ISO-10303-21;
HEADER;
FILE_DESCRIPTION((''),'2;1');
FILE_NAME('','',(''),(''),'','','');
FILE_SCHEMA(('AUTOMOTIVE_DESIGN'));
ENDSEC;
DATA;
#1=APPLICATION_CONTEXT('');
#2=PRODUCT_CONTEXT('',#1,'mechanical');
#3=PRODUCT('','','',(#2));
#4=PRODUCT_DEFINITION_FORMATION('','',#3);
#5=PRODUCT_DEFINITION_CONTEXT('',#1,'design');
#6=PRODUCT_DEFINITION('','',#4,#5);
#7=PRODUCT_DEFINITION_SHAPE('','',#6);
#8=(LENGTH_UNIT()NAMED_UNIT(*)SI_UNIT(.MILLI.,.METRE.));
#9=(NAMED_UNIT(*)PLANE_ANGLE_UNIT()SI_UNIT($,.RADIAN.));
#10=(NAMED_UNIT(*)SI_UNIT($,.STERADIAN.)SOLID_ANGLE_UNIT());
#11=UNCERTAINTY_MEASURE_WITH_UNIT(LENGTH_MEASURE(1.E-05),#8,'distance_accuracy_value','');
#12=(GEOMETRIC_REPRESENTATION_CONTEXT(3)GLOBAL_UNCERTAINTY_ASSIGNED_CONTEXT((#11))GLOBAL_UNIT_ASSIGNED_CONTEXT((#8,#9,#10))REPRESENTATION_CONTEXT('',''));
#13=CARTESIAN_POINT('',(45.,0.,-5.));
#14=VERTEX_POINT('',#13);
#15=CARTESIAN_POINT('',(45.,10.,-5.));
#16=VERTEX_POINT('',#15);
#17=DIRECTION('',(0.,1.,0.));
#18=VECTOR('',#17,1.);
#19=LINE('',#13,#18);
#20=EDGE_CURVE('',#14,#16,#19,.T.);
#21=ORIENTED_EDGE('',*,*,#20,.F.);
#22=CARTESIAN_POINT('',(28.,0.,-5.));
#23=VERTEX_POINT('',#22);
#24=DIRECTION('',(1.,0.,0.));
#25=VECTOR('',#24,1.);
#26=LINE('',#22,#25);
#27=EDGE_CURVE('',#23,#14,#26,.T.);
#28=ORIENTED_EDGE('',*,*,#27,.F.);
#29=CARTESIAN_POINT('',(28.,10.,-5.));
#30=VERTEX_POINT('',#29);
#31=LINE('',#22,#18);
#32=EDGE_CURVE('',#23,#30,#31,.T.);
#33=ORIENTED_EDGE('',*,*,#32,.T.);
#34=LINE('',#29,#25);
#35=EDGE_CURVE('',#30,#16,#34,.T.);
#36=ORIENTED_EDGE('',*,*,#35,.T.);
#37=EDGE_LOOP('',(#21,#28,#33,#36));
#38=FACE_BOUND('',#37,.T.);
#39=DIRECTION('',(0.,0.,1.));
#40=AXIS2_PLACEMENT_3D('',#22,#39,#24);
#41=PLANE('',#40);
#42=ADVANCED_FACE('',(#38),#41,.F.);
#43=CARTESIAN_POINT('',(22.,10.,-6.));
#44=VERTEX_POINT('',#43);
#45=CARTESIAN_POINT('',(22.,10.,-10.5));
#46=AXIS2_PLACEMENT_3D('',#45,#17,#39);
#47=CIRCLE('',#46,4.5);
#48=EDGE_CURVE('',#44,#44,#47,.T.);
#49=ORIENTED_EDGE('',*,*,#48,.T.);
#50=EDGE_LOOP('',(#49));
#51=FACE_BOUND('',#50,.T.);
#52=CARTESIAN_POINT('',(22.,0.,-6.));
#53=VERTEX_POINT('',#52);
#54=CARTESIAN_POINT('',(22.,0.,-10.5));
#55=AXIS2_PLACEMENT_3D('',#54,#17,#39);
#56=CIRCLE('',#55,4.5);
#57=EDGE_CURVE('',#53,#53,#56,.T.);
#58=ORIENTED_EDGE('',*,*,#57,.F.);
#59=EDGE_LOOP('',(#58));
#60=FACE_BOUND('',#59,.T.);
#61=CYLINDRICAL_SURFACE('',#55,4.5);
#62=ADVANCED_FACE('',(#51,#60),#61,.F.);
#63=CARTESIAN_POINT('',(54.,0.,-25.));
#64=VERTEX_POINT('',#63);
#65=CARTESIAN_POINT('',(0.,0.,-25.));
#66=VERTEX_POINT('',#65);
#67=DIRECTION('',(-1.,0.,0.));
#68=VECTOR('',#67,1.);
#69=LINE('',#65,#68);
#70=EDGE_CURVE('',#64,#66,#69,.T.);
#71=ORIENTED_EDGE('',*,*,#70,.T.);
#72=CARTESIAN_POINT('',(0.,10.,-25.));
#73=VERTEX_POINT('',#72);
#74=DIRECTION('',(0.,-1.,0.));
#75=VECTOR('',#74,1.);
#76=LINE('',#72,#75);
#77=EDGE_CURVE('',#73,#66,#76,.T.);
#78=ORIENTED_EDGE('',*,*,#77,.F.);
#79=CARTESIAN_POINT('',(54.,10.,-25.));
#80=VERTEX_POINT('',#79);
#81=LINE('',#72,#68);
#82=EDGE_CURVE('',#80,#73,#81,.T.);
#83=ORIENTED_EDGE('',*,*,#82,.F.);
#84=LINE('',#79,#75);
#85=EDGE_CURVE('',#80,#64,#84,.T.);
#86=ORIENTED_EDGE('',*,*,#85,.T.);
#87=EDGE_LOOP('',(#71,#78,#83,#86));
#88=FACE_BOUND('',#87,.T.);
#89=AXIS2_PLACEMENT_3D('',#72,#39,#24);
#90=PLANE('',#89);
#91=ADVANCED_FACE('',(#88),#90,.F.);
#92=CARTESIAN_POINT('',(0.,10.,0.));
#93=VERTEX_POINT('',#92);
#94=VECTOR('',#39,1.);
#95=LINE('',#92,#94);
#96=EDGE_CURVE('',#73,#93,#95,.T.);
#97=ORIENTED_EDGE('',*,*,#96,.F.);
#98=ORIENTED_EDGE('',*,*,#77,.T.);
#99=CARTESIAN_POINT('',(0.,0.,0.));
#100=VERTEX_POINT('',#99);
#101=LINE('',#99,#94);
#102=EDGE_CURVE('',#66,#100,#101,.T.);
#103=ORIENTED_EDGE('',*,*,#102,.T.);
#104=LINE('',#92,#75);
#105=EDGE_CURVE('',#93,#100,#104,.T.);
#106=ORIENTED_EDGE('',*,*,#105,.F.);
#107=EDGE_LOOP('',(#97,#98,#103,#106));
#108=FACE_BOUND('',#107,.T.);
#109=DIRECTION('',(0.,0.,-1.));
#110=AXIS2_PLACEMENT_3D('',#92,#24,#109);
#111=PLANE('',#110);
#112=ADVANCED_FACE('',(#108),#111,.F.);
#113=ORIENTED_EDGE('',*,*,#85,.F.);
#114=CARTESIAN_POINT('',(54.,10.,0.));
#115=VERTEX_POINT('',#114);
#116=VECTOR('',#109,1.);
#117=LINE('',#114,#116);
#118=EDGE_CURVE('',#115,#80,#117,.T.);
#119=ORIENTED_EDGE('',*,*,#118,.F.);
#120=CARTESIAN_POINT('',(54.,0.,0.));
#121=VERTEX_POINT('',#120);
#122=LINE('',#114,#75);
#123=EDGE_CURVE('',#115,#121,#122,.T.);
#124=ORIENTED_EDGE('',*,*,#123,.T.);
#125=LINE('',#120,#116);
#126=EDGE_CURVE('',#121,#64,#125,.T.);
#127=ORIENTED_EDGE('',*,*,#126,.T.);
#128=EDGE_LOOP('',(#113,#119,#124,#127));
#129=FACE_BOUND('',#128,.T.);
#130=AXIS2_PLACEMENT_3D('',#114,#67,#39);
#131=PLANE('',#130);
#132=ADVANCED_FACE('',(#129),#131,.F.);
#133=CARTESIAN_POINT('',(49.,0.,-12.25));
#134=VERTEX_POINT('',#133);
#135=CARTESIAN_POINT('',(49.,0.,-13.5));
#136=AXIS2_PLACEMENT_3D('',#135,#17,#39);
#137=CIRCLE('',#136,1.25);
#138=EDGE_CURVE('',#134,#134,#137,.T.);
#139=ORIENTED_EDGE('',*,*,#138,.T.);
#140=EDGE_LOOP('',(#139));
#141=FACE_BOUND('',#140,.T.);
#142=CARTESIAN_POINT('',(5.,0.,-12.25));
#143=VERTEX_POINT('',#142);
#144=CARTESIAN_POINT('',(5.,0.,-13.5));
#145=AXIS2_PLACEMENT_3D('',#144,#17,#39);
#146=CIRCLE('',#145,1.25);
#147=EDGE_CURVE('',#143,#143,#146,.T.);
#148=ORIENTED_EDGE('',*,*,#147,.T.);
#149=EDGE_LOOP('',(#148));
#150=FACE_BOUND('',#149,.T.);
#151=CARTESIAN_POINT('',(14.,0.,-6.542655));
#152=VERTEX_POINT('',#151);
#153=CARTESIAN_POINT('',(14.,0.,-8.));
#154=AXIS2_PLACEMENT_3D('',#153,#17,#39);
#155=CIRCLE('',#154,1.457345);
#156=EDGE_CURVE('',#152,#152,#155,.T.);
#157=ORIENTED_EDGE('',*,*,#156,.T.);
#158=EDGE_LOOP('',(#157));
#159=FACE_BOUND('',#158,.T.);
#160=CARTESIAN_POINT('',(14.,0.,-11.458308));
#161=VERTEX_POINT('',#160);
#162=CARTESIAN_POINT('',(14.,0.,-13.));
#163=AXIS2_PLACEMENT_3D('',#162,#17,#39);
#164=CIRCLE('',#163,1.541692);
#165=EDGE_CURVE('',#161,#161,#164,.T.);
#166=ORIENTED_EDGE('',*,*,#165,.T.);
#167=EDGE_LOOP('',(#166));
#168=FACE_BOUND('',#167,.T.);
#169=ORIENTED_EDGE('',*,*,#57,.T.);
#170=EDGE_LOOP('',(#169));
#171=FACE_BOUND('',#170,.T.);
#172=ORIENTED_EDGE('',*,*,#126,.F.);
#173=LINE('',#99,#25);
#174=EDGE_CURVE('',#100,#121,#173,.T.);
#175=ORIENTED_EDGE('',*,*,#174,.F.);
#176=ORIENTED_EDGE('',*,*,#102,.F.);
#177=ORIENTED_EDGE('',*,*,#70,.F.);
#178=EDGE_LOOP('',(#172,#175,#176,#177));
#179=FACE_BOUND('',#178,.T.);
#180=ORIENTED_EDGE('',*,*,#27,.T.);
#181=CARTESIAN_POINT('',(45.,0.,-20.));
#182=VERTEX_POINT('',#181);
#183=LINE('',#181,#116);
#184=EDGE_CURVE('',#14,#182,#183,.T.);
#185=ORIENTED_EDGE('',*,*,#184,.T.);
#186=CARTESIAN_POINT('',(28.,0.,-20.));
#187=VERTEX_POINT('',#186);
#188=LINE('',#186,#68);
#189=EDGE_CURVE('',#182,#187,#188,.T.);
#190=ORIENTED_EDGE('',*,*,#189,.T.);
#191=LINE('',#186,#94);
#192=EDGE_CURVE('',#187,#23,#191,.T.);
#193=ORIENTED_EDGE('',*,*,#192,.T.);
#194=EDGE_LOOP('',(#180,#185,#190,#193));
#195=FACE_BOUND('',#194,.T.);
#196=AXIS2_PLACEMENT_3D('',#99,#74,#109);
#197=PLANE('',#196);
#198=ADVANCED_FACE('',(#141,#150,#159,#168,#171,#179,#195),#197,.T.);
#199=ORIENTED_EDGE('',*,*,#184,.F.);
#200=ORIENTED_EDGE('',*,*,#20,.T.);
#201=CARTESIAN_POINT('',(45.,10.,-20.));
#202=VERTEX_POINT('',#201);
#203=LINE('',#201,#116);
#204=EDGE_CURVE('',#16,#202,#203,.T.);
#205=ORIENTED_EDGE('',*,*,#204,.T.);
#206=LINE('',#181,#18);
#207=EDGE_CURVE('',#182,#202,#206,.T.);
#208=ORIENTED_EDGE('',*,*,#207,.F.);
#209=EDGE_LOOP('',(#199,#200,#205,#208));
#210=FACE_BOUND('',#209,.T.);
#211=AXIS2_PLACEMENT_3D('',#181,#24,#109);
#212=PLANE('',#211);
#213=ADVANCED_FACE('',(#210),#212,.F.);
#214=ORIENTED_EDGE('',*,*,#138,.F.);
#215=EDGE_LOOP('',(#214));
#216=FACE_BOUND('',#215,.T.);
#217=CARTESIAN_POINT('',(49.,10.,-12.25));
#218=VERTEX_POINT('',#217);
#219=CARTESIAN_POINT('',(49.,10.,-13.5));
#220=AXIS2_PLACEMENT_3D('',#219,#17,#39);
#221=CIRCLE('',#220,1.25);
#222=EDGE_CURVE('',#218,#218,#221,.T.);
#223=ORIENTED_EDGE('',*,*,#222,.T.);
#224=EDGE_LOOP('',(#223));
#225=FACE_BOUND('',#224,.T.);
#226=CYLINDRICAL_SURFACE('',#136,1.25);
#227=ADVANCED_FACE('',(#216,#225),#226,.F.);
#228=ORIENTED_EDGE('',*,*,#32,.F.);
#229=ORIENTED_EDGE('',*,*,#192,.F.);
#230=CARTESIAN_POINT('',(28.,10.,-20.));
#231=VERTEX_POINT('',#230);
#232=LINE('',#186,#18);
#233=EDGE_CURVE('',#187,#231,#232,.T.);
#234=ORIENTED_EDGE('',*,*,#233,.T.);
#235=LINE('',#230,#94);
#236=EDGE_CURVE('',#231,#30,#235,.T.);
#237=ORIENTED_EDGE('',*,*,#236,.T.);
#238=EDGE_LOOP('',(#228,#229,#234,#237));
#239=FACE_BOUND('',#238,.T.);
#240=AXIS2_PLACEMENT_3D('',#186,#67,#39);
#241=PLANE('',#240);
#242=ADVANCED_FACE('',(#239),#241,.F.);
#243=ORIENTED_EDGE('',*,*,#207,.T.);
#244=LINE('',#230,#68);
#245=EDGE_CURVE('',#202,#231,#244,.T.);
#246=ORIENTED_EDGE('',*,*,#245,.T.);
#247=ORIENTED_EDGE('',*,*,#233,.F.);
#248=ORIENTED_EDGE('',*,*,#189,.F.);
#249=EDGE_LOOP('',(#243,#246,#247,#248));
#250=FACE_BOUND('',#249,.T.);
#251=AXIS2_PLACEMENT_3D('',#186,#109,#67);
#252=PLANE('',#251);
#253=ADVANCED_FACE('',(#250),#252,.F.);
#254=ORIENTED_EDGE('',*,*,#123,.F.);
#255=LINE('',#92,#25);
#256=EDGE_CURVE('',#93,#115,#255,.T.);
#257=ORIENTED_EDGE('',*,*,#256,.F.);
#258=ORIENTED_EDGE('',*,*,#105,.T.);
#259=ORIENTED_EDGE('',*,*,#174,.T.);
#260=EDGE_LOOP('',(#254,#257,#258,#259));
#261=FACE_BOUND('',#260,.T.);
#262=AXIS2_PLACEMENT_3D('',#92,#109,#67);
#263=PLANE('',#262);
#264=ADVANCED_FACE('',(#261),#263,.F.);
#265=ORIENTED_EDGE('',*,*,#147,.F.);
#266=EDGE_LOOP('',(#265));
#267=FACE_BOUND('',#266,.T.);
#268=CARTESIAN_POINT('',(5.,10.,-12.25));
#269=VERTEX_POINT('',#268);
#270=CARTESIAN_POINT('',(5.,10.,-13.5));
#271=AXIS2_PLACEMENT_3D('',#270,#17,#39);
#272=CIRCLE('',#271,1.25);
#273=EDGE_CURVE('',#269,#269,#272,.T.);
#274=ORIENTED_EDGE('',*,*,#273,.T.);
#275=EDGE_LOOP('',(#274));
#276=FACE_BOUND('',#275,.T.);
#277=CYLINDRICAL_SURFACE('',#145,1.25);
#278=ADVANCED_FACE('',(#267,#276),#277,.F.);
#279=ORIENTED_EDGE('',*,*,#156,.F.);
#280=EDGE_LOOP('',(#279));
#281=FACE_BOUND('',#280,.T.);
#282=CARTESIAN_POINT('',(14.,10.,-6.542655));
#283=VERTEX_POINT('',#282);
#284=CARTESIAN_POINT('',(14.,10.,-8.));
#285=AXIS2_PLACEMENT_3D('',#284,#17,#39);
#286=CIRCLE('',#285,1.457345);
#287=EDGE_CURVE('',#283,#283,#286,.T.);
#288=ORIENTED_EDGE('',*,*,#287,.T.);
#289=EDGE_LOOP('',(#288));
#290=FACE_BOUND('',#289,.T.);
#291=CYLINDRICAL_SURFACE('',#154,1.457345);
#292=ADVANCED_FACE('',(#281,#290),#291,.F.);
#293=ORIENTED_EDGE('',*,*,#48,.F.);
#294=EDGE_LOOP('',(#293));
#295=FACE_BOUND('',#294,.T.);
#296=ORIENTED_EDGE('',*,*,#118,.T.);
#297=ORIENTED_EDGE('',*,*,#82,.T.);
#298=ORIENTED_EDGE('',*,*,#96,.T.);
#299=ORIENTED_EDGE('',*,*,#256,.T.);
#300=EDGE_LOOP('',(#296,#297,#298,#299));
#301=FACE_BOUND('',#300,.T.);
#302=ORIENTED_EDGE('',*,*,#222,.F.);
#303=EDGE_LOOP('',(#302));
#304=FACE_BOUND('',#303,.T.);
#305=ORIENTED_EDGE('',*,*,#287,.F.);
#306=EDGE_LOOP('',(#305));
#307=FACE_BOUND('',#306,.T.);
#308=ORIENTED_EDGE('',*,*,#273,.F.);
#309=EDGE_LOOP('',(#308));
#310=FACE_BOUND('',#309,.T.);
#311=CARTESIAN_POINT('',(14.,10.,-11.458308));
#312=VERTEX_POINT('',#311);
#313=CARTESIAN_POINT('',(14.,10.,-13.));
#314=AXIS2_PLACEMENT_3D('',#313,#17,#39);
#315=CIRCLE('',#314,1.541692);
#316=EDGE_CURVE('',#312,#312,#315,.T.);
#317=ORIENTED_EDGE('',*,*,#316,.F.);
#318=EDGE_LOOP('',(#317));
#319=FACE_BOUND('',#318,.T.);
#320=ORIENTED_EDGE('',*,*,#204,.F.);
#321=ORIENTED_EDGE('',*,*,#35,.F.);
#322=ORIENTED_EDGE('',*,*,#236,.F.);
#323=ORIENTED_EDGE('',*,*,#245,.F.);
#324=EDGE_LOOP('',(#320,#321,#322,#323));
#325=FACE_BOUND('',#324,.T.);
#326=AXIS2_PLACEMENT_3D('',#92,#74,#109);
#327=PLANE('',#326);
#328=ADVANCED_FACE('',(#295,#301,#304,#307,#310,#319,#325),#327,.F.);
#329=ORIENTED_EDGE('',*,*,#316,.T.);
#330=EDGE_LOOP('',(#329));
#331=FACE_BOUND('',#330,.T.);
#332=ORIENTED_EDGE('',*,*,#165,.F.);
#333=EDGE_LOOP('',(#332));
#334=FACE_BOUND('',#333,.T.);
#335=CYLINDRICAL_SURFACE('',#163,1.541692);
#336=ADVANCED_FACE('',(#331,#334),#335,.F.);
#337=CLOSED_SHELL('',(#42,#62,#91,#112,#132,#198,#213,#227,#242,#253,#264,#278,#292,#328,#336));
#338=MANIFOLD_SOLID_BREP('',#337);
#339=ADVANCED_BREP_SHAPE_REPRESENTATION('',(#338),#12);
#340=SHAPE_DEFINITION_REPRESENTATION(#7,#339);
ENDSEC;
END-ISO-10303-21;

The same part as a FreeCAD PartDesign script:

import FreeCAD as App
import Part
import Sketcher

V = App.Vector
Q = App.Units.Quantity


def add_polygon(sketch, points):
    """Adds a closed chain of lines whose ends are joined by coincident constraints."""
    first, n = sketch.GeometryCount, len(points)
    for a, b in zip(points, points[1:] + points[:1]):
        sketch.addGeometry(Part.LineSegment(App.Vector(*a, 0), App.Vector(*b, 0)), False)
    for i in range(n):
        sketch.addConstraint(Sketcher.Constraint("Coincident", first + i, 2, first + (i + 1) % n, 1))

doc = App.newDocument("Part")
params = doc.addObject("Spreadsheet::Sheet", "Params")
for row, (alias, value) in enumerate([
    ("sketch1_width", "54 mm"),
    ("sketch1_height", "25 mm"),
    ("pad1_length", "10 mm"),
    ("sketch2_diameter", "9 mm"),
    ("sketch2_diameter2", "2.5 mm"),
    ("sketch2_width", "17 mm"),
    ("sketch2_height", "15 mm"),
    ("pocket1_length", "10 mm"),
], start=1):
    params.set(f"A{row}", alias)
    params.set(f"B{row}", "=" + value)
    params.setAlias(f"B{row}", alias)

body = doc.addObject("PartDesign::Body", "Body")

sketch1 = body.newObject("Sketcher::SketchObject", "Sketch")
sketch1.AttachmentSupport = (doc.getObject("XZ_Plane"), [""])
sketch1.MapMode = "FlatFace"
add_polygon(sketch1, [(0, -25), (0, 0), (54, 0), (54, -25)])
sketch1.addConstraint([
    Sketcher.Constraint("Vertical", 0),
    Sketcher.Constraint("Horizontal", 1),
    Sketcher.Constraint("Vertical", 2),
    Sketcher.Constraint("Horizontal", 3),
    Sketcher.Constraint("Coincident", 0, 2, -1, 1),
    Sketcher.Constraint("DistanceX", 1, 1, 1, 2, Q("54 mm")),
    Sketcher.Constraint("DistanceY", 0, 1, 0, 2, Q("25 mm")),
])
sketch1.setExpression("Constraints[9]", "Params.sketch1_width")
sketch1.setExpression("Constraints[10]", "Params.sketch1_height")
pad1 = body.newObject("PartDesign::Pad", "Pad")
pad1.Profile = sketch1
pad1.setExpression("Length", "Params.pad1_length")
pad1.Reversed = True

sketch2 = body.newObject("Sketcher::SketchObject", "Sketch001")
sketch2.AttachmentSupport = (doc.getObject("XZ_Plane"), [""])
sketch2.MapMode = "FlatFace"
sketch2.AttachmentOffset = App.Placement(V(0, 0, -10), App.Rotation())
sketch2.addGeometry(Part.Circle(V(49, -13.5, 0), V(0, 0, 1), 1.25), False)
sketch2.addGeometry(Part.Circle(V(5, -13.5, 0), V(0, 0, 1), 1.25), False)
sketch2.addGeometry(Part.Circle(V(22, -10.5, 0), V(0, 0, 1), 4.5), False)
sketch2.addGeometry(Part.Circle(V(14, -13, 0), V(0, 0, 1), 1.541692), False)
sketch2.addGeometry(Part.Circle(V(14, -8, 0), V(0, 0, 1), 1.457345), False)
add_polygon(sketch2, [(28, -20), (28, -5), (45, -5), (45, -20)])
sketch2.addConstraint([
    Sketcher.Constraint("Vertical", 5),
    Sketcher.Constraint("Horizontal", 6),
    Sketcher.Constraint("Vertical", 7),
    Sketcher.Constraint("Horizontal", 8),
    Sketcher.Constraint("Equal", 0, 1),
    Sketcher.Constraint("Horizontal", 0, 3, 1, 3),
    Sketcher.Constraint("Vertical", 3, 3, 4, 3),
    Sketcher.Constraint("Diameter", 2, Q("9 mm")),
    Sketcher.Constraint("Diameter", 0, Q("2.5 mm")),
    Sketcher.Constraint("DistanceX", 6, 1, 6, 2, Q("17 mm")),
    Sketcher.Constraint("DistanceY", 5, 1, 5, 2, Q("15 mm")),
    Sketcher.Constraint("DistanceX", -1, 1, 0, 3, Q("49 mm")),
    Sketcher.Constraint("DistanceX", -1, 1, 1, 3, Q("5 mm")),
    Sketcher.Constraint("DistanceX", -1, 1, 2, 3, Q("22 mm")),
    Sketcher.Constraint("DistanceX", -1, 1, 3, 3, Q("14 mm")),
    Sketcher.Constraint("DistanceY", 3, 3, -1, 1, Q("13 mm")),
    Sketcher.Constraint("DistanceY", 4, 3, -1, 1, Q("8 mm")),
    Sketcher.Constraint("DistanceX", -1, 1, 5, 2, Q("28 mm")),
    Sketcher.Constraint("DistanceY", 5, 2, -1, 1, Q("5 mm")),
    Sketcher.Constraint("DistanceY", 1, 3, 2, 3, Q("3 mm")),
    Sketcher.Constraint("DistanceY", 0, 3, -1, 1, Q("13.5 mm")),
    Sketcher.Constraint("Diameter", 4, Q("2.914691 mm")),
    Sketcher.Constraint("Diameter", 3, Q("3.083385 mm")),
])
sketch2.setExpression("Constraints[11]", "Params.sketch2_diameter")
sketch2.setExpression("Constraints[12]", "Params.sketch2_diameter2")
sketch2.setExpression("Constraints[13]", "Params.sketch2_width")
sketch2.setExpression("Constraints[14]", "Params.sketch2_height")
pocket1 = body.newObject("PartDesign::Pocket", "Pocket")
pocket1.Profile = sketch2
pocket1.setExpression("Length", "Params.pocket1_length")
pocket1.Reversed = True

doc.recompute()
